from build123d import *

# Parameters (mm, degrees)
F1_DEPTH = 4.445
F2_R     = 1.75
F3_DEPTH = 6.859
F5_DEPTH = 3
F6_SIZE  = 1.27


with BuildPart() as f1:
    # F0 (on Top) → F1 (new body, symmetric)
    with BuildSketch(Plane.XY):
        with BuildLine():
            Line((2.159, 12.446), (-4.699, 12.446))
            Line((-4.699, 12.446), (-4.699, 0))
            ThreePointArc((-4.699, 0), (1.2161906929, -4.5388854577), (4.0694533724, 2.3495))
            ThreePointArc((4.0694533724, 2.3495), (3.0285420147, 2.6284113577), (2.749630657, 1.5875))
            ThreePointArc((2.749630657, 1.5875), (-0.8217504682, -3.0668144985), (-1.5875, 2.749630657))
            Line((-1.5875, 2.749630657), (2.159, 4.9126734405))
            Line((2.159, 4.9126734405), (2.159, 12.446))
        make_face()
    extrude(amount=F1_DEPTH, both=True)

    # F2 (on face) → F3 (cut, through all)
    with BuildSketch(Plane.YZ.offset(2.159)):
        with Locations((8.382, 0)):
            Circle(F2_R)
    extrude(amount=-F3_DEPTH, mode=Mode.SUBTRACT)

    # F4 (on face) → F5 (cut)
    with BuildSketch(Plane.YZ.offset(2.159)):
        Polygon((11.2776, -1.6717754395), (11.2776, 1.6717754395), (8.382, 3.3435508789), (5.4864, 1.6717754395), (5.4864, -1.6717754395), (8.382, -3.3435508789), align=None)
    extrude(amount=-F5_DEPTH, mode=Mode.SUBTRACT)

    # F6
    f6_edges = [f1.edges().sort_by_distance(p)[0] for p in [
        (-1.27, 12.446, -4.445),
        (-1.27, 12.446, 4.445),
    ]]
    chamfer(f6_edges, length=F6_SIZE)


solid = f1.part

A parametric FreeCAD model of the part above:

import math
import FreeCAD as App
import Part
import Sketcher

V = App.Vector
Q = App.Units.Quantity


def edges_at(feature, points):
    """Names of the edges that pass closest to the given points."""
    edges = feature.Shape.Edges
    near = lambda p: min(range(len(edges)), key=lambda i: edges[i].distToShape(Part.Vertex(*p))[0])
    return sorted({f"Edge{near(p) + 1}" for p in points})

doc = App.newDocument("Part")
params = doc.addObject("Spreadsheet::Sheet", "Params")
for row, (alias, value) in enumerate([
    ("sketch1_radius", "0.03 in"),
    ("sketch1_radius2", "0.185 in"),
    ("sketch1_width", "0.27 in"),
    ("sketch1_height", "0.49 in"),
    ("pad1_length", "0.35 in"),
    ("pocket2_length", "3 mm"),
    ("chamfer_size", "0.05 in"),
], start=1):
    params.set(f"A{row}", alias)
    params.set(f"B{row}", "=" + value)
    params.setAlias(f"B{row}", alias)

body = doc.addObject("PartDesign::Body", "Body")

sketch1 = body.newObject("Sketcher::SketchObject", "Sketch")
sketch1.AttachmentSupport = (doc.getObject("XY_Plane"), [""])
sketch1.MapMode = "FlatFace"
sketch1.addGeometry([
    Part.LineSegment(V(2.2, 12.4, 0), V(-4.7, 12.4, 0)),
    Part.LineSegment(V(-4.7, 12.4, 0), V(-4.7, 0, 0)),
    Part.ArcOfCircle(Part.Circle(V(0, 0, 0), V(0, 0, 1), 4.7), math.radians(180), math.radians(390)),
    Part.ArcOfCircle(Part.Circle(V(3.4, 2, 0), V(0, 0, 1), 0.8), math.radians(30), math.radians(210)),
    Part.ArcOfCircle(Part.Circle(V(0, 0, 0), V(0, 0, 1), 3.2), math.radians(120), math.radians(390)),
    Part.LineSegment(V(-1.6, 2.7, 0), V(2.2, 4.9, 0)),
    Part.LineSegment(V(2.2, 4.9, 0), V(2.2, 12.4, 0)),
], False)
sketch1.addConstraint([
    Sketcher.Constraint("Coincident", 0, 2, 1, 1),
    Sketcher.Constraint("Tangent", 1, 2, 2, 1),
    Sketcher.Constraint("Tangent", 2, 2, 3, 1),
    Sketcher.Constraint("Tangent", 3, 2, 4, 2),
    Sketcher.Constraint("Tangent", 4, 1, 5, 1),
    Sketcher.Constraint("Coincident", 5, 2, 6, 1),
    Sketcher.Constraint("Coincident", 6, 2, 0, 1),
    Sketcher.Constraint("Horizontal", 0),
    Sketcher.Constraint("Vertical", 1),
    Sketcher.Constraint("Vertical", 6),
    Sketcher.Constraint("Coincident", 2, 3, -1, 1),
    Sketcher.Constraint("Coincident", 4, 3, -1, 1),
    Sketcher.Constraint("Radius", 3, Q("0.03 in")),
    Sketcher.Constraint("Angle", 5, Q("30 deg")),
    Sketcher.Constraint("Radius", 2, Q("0.185 in")),
    Sketcher.Constraint("DistanceX", 0, 2, 0, 1, Q("0.27 in")),
    Sketcher.Constraint("DistanceY", 1, 2, 1, 1, Q("0.49 in")),
    Sketcher.Constraint("DistanceY", 3, 2, 2, 2, Q("0.03 in")),
])
sketch1.setExpression("Constraints[12]", "Params.sketch1_radius")
sketch1.setExpression("Constraints[14]", "Params.sketch1_radius2")
sketch1.setExpression("Constraints[15]", "Params.sketch1_width")
sketch1.setExpression("Constraints[16]", "Params.sketch1_height")
pad1 = body.newObject("PartDesign::Pad", "Pad")
pad1.Profile = sketch1
pad1.setExpression("Length", "Params.pad1_length")
pad1.Midplane = True

sketch2 = body.newObject("Sketcher::SketchObject", "Sketch001")
sketch2.AttachmentSupport = (doc.getObject("YZ_Plane"), [""])
sketch2.MapMode = "FlatFace"
sketch2.AttachmentOffset = App.Placement(V(0, 0, 0.085 * 25.4), App.Rotation())
sketch2.addGeometry(Part.Circle(V(8.4, 0, 0), V(0, 0, 1), 1.8), False)
sketch2.addConstraint([
    Sketcher.Constraint("PointOnObject", 0, 3, -1),
    Sketcher.Constraint("Diameter", 0, 3.5),
    Sketcher.Constraint("DistanceX", -1, 1, 0, 3, Q("0.33 in")),
])
pocket1 = body.newObject("PartDesign::Pocket", "Pocket")
pocket1.Profile = sketch2
pocket1.Type = "ThroughAll"

sketch3 = body.newObject("Sketcher::SketchObject", "Sketch002")
sketch3.AttachmentSupport = (doc.getObject("YZ_Plane"), [""])
sketch3.MapMode = "FlatFace"
sketch3.AttachmentOffset = App.Placement(V(0, 0, 0.085 * 25.4), App.Rotation())
sketch3.addGeometry([
    Part.LineSegment(V(11.3, -1.7, 0), V(11.3, 1.7, 0)),
    Part.LineSegment(V(11.3, 1.7, 0), V(8.4, 3.3, 0)),
    Part.LineSegment(V(8.4, 3.3, 0), V(5.5, 1.7, 0)),
    Part.LineSegment(V(5.5, 1.7, 0), V(5.5, -1.7, 0)),
    Part.LineSegment(V(5.5, -1.7, 0), V(8.4, -3.3, 0)),
    Part.LineSegment(V(8.4, -3.3, 0), V(11.3, -1.7, 0)),
], False)
sketch3.addConstraint([
    Sketcher.Constraint("Coincident", 0, 2, 1, 1),
    Sketcher.Constraint("Coincident", 1, 2, 2, 1),
    Sketcher.Constraint("Coincident", 2, 2, 3, 1),
    Sketcher.Constraint("Coincident", 3, 2, 4, 1),
    Sketcher.Constraint("Coincident", 4, 2, 5, 1),
    Sketcher.Constraint("Coincident", 5, 2, 0, 1),
    Sketcher.Constraint("Vertical", 0),
    Sketcher.Constraint("Vertical", 3),
    Sketcher.Constraint("Symmetric", 1, 2, 4, 2, -1),
    Sketcher.Constraint("Parallel", 1, 4),
    Sketcher.Constraint("Parallel", 2, 5),
    Sketcher.Constraint("Horizontal", 0, 2, 2, 2),
    Sketcher.Constraint("Horizontal", 3, 2, 5, 2),
    Sketcher.Constraint("Angle", 1, Q("150 deg")),
    Sketcher.Constraint("DistanceX", -1, 1, 1, 2, Q("0.33 in")),
    Sketcher.Constraint("DistanceX", -1, 1, 0, 2, Q("0.444 in")),
    Sketcher.Constraint("DistanceY", 0, 1, 0, 2, 3.343551),
])
pocket2 = body.newObject("PartDesign::Pocket", "Pocket001")
pocket2.Profile = sketch3
pocket2.setExpression("Length", "Params.pocket2_length")
doc.recompute()

chamfer = body.newObject("PartDesign::Chamfer", "Chamfer")
chamfer.Base = (pocket2, edges_at(pocket2, [(-1.27, 12.446, -4.445), (-1.27, 12.446, 4.445)]))
chamfer.setExpression("Size", "Params.chamfer_size")

doc.recompute()
